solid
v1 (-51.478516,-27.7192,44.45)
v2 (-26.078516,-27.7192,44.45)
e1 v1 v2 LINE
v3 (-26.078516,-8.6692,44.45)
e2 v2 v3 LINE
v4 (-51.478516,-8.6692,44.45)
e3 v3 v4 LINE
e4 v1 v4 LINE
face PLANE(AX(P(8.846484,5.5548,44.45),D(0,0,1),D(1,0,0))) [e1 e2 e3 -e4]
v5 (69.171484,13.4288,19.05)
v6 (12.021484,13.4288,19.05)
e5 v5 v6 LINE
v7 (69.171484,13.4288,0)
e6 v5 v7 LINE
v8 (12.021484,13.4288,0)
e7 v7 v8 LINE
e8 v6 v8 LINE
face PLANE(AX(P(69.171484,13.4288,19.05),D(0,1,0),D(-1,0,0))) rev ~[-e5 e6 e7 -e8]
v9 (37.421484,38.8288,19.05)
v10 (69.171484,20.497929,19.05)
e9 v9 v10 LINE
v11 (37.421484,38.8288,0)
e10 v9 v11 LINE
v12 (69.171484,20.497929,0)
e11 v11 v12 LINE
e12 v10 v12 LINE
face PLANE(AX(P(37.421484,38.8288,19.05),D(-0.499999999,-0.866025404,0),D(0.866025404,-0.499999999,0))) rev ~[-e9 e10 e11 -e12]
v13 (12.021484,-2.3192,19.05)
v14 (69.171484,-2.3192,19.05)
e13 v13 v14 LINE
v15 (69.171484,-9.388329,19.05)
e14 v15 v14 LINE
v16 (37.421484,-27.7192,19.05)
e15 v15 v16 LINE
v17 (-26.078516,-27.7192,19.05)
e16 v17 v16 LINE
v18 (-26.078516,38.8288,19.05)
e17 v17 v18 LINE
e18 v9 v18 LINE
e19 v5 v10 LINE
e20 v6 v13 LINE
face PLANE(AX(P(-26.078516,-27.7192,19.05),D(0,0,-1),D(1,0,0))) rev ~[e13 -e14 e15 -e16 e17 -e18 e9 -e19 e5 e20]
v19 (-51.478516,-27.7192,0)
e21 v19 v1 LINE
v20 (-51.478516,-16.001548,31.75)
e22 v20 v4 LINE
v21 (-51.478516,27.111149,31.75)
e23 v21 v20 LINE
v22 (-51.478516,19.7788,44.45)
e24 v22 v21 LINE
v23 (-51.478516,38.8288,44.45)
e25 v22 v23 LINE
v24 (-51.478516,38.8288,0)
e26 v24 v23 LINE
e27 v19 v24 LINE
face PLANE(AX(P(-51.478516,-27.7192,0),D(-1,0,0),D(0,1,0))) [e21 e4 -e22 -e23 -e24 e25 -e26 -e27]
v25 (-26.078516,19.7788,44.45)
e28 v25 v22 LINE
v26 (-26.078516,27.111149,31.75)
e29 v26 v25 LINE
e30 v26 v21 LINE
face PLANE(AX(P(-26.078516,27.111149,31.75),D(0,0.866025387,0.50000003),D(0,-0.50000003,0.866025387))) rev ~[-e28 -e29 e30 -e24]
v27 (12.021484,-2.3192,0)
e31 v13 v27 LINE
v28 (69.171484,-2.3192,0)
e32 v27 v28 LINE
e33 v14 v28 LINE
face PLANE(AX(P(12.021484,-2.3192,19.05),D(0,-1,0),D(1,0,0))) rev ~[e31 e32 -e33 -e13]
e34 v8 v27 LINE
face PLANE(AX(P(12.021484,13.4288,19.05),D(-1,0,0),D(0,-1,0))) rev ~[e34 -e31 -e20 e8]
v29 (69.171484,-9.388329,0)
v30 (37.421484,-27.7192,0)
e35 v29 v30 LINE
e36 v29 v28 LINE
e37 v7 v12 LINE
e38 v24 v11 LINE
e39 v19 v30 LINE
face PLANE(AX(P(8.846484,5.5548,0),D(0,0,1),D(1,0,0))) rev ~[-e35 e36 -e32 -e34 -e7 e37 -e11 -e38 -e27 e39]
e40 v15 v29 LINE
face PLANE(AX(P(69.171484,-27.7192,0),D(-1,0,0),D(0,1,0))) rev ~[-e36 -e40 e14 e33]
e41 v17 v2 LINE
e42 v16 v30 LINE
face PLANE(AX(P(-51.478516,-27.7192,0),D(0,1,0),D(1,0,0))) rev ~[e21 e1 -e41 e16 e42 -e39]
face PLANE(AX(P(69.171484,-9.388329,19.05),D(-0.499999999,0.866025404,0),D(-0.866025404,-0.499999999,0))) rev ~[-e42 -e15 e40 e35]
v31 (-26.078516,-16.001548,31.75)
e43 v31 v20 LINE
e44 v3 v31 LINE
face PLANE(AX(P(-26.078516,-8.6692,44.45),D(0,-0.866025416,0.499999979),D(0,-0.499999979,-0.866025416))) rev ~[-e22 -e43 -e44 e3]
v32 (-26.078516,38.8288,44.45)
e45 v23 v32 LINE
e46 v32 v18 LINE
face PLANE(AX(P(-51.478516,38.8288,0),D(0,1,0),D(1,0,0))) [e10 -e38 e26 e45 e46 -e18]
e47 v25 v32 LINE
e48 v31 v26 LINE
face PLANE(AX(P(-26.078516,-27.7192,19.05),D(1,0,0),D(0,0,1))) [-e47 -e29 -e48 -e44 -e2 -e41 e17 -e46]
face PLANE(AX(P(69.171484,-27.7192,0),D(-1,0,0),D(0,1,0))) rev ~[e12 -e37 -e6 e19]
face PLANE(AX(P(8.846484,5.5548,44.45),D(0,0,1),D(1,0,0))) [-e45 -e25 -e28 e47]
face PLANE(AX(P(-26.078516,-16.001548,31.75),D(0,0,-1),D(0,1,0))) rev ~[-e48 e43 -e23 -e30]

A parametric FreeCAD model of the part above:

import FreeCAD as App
import Part
import Sketcher
from FreeCAD import Vector
Q = App.Units.Quantity


def add_polygon(sketch, points):
    """Adds a closed chain of lines whose ends are joined by coincident constraints."""
    first, n = sketch.GeometryCount, len(points)
    for a, b in zip(points, points[1:] + points[:1]):
        sketch.addGeometry(Part.LineSegment(App.Vector(*a, 0), App.Vector(*b, 0)), False)
    for i in range(n):
        sketch.addConstraint(Sketcher.Constraint("Coincident", first + i, 2, first + (i + 1) % n, 1))

doc = App.newDocument("Part")
body = doc.addObject("PartDesign::Body", "Body")

# Sketch on XY plane
sketch1 = doc.addObject("Sketcher::SketchObject", "Sketch")
body.addObject(sketch1)
sketch1.AttachmentSupport = (doc.XY_Plane, [""])
sketch1.MapMode = "FlatFace"
add_polygon(sketch1, [(-51, 39), (-51, -28), (69, -28), (69, 39)])  # lines 0-3
sketch1.addConstraint([
    Sketcher.Constraint("Vertical", 0),
    Sketcher.Constraint("Horizontal", 1),
    Sketcher.Constraint("Vertical", 2),
    Sketcher.Constraint("Horizontal", 3),
    Sketcher.Constraint("DistanceX", 1, 1, 1, 2, Q("4.75 in")),
    Sketcher.Constraint("DistanceY", 0, 2, 0, 1, Q("2.62 in")),
    Sketcher.Constraint("DistanceY", 0, 2, -1, 1, Q("27.7192 mm")),
    Sketcher.Constraint("DistanceX", 0, 2, -1, 1, Q("51.478516 mm")),
])
pad1 = doc.addObject("PartDesign::Pad", "Pad")
body.addObject(pad1)
pad1.Profile = sketch1
pad1.Length = Q("1.75 in")

# Sketch on XZ plane
sketch2 = doc.addObject("Sketcher::SketchObject", "Sketch001")
body.addObject(sketch2)
sketch2.AttachmentSupport = (doc.XZ_Plane, [""])
sketch2.MapMode = "FlatFace"
sketch2.AttachmentOffset = App.Placement(Vector(0, 0, 27.7192), App.Rotation())
add_polygon(sketch2, [(-26, 44), (-26, 19), (69, 19), (69, 44)])  # lines 0-3
sketch2.addConstraint([
    Sketcher.Constraint("Vertical", 0),
    Sketcher.Constraint("Horizontal", 1),
    Sketcher.Constraint("Vertical", 2),
    Sketcher.Constraint("Horizontal", 3),
    Sketcher.Constraint("DistanceY", 0, 2, 0, 1, Q("1 in")),
    Sketcher.Constraint("DistanceX", 1, 1, 1, 2, Q("3.75 in")),
    Sketcher.Constraint("DistanceY", -1, 1, 0, 2, Q("0.75 in")),
    Sketcher.Constraint("DistanceX", 0, 2, -1, 1, Q("26.078516 mm")),
])
pocket1 = doc.addObject("PartDesign::Pocket", "Pocket")
body.addObject(pocket1)
pocket1.Profile = sketch2
pocket1.Length = Q("7.18 in")

# Sketch on XY plane
sketch3 = doc.addObject("Sketcher::SketchObject", "Sketch002")
body.addObject(sketch3)
sketch3.AttachmentSupport = (doc.XY_Plane, [""])
sketch3.MapMode = "FlatFace"
sketch3.AttachmentOffset = App.Placement(Vector(0, 0, 0.75 * 25.4), App.Rotation())
add_polygon(sketch3, [(69, 13), (12, 13), (12, -2), (69, -2)])  # lines 0-3
sketch3.addConstraint([
    Sketcher.Constraint("Horizontal", 0),
    Sketcher.Constraint("Vertical", 1),
    Sketcher.Constraint("Horizontal", 2),
    Sketcher.Constraint("Vertical", 3),
    Sketcher.Constraint("DistanceX", 0, 2, 0, 1, Q("2.25 in")),
    Sketcher.Constraint("DistanceY", 1, 2, 1, 1, Q("0.62 in")),
    Sketcher.Constraint("DistanceY", -1, 1, 0, 2, Q("13.4288 mm")),
    Sketcher.Constraint("DistanceX", -1, 1, 0, 2, Q("12.021484 mm")),
])
pocket2 = doc.addObject("PartDesign::Pocket", "Pocket001")
body.addObject(pocket2)
pocket2.Profile = sketch3
pocket2.Length = Q("3.17 in")

# Sketch on YZ plane
sketch4 = doc.addObject("Sketcher::SketchObject", "Sketch003")
body.addObject(sketch4)
sketch4.AttachmentSupport = (doc.YZ_Plane, [""])
sketch4.MapMode = "FlatFace"
sketch4.AttachmentOffset = App.Placement(Vector(0, 0, -26.078516), App.Rotation())
add_polygon(sketch4, [(-9, 44), (-16, 32), (27, 32), (20, 44)])  # lines 0-3
sketch4.addConstraint([
    Sketcher.Constraint("Horizontal", 1),
    Sketcher.Constraint("Horizontal", 3),
    Sketcher.Constraint("Equal", 0, 2),
    Sketcher.Constraint("Angle", 0, Q("-119.999999 deg")),
    Sketcher.Constraint("DistanceX", 3, 2, 3, 1, Q("1.12 in")),
    Sketcher.Constraint("DistanceY", 1, 2, 2, 2, Q("0.5 in")),
    Sketcher.Constraint("DistanceY", -1, 1, 0, 2, Q("1.25 in")),
    Sketcher.Constraint("DistanceX", -1, 1, 2, 2, Q("19.7788 mm")),
])
pocket3 = doc.addObject("PartDesign::Pocket", "Pocket002")
body.addObject(pocket3)
pocket3.Profile = sketch4
pocket3.Length = Q("4.08 in")

# Sketch on XY plane
sketch5 = doc.addObject("Sketcher::SketchObject", "Sketch004")
body.addObject(sketch5)
sketch5.AttachmentSupport = (doc.XY_Plane, [""])
sketch5.MapMode = "FlatFace"
sketch5.AttachmentOffset = App.Placement(Vector(0, 0, 0.75 * 25.4), App.Rotation())
add_polygon(sketch5, [(37, -28), (69, -28), (69, -9)])  # lines 0-2
add_polygon(sketch5, [(69, 20), (69, 39), (37, 39)])  # lines 3-5
sketch5.addConstraint([
    Sketcher.Constraint("Horizontal", 0),
    Sketcher.Constraint("Vertical", 1),
    Sketcher.Constraint("Vertical", 3),
    Sketcher.Constraint("Horizontal", 4),
    Sketcher.Constraint("Vertical", 1, 2, 3, 2),
    Sketcher.Constraint("Vertical", 2, 2, 4, 2),
    Sketcher.Constraint("Equal", 1, 3),
    Sketcher.Constraint("Angle", 2, Q("-150 deg")),
    Sketcher.Constraint("DistanceX", 0, 1, 0, 2, Q("1.25 in")),
    Sketcher.Constraint("DistanceY", 0, 2, 3, 2, Q("2.62 in")),
    Sketcher.Constraint("DistanceY", 0, 2, -1, 1, Q("27.7192 mm")),
    Sketcher.Constraint("DistanceX", -1, 1, 0, 2, Q("69.171484 mm")),
])
pocket4 = doc.addObject("PartDesign::Pocket", "Pocket003")
body.addObject(pocket4)
pocket4.Profile = sketch5
pocket4.Length = Q("1.74 in")

doc.recompute()
